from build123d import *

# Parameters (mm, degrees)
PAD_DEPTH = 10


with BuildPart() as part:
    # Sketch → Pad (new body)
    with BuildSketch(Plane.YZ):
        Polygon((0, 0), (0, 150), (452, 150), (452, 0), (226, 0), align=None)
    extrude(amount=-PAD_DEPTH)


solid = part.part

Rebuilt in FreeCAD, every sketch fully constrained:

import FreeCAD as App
import Part
import Sketcher

doc = App.newDocument("Part")
body = doc.addObject("PartDesign::Body", "Body")

# Sketch on YZ plane
sketch1 = body.newObject("Sketcher::SketchObject", "Sketch")
sketch1.AttachmentSupport = (doc.getObject("YZ_Plane"), [""])
sketch1.MapMode = "FlatFace"
sketch1.addGeometry(Part.LineSegment(App.Vector(0, 150, 0), App.Vector(0, 0, 0)), False)
sketch1.addGeometry(Part.LineSegment(App.Vector(0, 0, 0), App.Vector(452, 0, 0)), False)
sketch1.addGeometry(Part.LineSegment(App.Vector(452, 0, 0), App.Vector(452, 150, 0)), False)
sketch1.addGeometry(Part.LineSegment(App.Vector(452, 150, 0), App.Vector(0, 150, 0)), False)
sketch1.addConstraint(Sketcher.Constraint("Coincident", 0, 2, 1, 1))
sketch1.addConstraint(Sketcher.Constraint("Coincident", 1, 2, 2, 1))
sketch1.addConstraint(Sketcher.Constraint("Coincident", 2, 2, 3, 1))
sketch1.addConstraint(Sketcher.Constraint("Coincident", 3, 2, 0, 1))
sketch1.addConstraint(Sketcher.Constraint("Vertical", 0))
sketch1.addConstraint(Sketcher.Constraint("Horizontal", 1))
sketch1.addConstraint(Sketcher.Constraint("Vertical", 2))
sketch1.addConstraint(Sketcher.Constraint("Horizontal", 3))
sketch1.addConstraint(Sketcher.Constraint("Coincident", 0, 2, -1, 1))
sketch1.addConstraint(Sketcher.Constraint("DistanceX", 1, 1, 1, 2, 452.0))
sketch1.addConstraint(Sketcher.Constraint("DistanceY", 0, 2, 0, 1, 150.0))
pad1 = body.newObject("PartDesign::Pad", "Pad")
pad1.Profile = sketch1
pad1.Length = 10
pad1.Reversed = True

doc.recompute()
